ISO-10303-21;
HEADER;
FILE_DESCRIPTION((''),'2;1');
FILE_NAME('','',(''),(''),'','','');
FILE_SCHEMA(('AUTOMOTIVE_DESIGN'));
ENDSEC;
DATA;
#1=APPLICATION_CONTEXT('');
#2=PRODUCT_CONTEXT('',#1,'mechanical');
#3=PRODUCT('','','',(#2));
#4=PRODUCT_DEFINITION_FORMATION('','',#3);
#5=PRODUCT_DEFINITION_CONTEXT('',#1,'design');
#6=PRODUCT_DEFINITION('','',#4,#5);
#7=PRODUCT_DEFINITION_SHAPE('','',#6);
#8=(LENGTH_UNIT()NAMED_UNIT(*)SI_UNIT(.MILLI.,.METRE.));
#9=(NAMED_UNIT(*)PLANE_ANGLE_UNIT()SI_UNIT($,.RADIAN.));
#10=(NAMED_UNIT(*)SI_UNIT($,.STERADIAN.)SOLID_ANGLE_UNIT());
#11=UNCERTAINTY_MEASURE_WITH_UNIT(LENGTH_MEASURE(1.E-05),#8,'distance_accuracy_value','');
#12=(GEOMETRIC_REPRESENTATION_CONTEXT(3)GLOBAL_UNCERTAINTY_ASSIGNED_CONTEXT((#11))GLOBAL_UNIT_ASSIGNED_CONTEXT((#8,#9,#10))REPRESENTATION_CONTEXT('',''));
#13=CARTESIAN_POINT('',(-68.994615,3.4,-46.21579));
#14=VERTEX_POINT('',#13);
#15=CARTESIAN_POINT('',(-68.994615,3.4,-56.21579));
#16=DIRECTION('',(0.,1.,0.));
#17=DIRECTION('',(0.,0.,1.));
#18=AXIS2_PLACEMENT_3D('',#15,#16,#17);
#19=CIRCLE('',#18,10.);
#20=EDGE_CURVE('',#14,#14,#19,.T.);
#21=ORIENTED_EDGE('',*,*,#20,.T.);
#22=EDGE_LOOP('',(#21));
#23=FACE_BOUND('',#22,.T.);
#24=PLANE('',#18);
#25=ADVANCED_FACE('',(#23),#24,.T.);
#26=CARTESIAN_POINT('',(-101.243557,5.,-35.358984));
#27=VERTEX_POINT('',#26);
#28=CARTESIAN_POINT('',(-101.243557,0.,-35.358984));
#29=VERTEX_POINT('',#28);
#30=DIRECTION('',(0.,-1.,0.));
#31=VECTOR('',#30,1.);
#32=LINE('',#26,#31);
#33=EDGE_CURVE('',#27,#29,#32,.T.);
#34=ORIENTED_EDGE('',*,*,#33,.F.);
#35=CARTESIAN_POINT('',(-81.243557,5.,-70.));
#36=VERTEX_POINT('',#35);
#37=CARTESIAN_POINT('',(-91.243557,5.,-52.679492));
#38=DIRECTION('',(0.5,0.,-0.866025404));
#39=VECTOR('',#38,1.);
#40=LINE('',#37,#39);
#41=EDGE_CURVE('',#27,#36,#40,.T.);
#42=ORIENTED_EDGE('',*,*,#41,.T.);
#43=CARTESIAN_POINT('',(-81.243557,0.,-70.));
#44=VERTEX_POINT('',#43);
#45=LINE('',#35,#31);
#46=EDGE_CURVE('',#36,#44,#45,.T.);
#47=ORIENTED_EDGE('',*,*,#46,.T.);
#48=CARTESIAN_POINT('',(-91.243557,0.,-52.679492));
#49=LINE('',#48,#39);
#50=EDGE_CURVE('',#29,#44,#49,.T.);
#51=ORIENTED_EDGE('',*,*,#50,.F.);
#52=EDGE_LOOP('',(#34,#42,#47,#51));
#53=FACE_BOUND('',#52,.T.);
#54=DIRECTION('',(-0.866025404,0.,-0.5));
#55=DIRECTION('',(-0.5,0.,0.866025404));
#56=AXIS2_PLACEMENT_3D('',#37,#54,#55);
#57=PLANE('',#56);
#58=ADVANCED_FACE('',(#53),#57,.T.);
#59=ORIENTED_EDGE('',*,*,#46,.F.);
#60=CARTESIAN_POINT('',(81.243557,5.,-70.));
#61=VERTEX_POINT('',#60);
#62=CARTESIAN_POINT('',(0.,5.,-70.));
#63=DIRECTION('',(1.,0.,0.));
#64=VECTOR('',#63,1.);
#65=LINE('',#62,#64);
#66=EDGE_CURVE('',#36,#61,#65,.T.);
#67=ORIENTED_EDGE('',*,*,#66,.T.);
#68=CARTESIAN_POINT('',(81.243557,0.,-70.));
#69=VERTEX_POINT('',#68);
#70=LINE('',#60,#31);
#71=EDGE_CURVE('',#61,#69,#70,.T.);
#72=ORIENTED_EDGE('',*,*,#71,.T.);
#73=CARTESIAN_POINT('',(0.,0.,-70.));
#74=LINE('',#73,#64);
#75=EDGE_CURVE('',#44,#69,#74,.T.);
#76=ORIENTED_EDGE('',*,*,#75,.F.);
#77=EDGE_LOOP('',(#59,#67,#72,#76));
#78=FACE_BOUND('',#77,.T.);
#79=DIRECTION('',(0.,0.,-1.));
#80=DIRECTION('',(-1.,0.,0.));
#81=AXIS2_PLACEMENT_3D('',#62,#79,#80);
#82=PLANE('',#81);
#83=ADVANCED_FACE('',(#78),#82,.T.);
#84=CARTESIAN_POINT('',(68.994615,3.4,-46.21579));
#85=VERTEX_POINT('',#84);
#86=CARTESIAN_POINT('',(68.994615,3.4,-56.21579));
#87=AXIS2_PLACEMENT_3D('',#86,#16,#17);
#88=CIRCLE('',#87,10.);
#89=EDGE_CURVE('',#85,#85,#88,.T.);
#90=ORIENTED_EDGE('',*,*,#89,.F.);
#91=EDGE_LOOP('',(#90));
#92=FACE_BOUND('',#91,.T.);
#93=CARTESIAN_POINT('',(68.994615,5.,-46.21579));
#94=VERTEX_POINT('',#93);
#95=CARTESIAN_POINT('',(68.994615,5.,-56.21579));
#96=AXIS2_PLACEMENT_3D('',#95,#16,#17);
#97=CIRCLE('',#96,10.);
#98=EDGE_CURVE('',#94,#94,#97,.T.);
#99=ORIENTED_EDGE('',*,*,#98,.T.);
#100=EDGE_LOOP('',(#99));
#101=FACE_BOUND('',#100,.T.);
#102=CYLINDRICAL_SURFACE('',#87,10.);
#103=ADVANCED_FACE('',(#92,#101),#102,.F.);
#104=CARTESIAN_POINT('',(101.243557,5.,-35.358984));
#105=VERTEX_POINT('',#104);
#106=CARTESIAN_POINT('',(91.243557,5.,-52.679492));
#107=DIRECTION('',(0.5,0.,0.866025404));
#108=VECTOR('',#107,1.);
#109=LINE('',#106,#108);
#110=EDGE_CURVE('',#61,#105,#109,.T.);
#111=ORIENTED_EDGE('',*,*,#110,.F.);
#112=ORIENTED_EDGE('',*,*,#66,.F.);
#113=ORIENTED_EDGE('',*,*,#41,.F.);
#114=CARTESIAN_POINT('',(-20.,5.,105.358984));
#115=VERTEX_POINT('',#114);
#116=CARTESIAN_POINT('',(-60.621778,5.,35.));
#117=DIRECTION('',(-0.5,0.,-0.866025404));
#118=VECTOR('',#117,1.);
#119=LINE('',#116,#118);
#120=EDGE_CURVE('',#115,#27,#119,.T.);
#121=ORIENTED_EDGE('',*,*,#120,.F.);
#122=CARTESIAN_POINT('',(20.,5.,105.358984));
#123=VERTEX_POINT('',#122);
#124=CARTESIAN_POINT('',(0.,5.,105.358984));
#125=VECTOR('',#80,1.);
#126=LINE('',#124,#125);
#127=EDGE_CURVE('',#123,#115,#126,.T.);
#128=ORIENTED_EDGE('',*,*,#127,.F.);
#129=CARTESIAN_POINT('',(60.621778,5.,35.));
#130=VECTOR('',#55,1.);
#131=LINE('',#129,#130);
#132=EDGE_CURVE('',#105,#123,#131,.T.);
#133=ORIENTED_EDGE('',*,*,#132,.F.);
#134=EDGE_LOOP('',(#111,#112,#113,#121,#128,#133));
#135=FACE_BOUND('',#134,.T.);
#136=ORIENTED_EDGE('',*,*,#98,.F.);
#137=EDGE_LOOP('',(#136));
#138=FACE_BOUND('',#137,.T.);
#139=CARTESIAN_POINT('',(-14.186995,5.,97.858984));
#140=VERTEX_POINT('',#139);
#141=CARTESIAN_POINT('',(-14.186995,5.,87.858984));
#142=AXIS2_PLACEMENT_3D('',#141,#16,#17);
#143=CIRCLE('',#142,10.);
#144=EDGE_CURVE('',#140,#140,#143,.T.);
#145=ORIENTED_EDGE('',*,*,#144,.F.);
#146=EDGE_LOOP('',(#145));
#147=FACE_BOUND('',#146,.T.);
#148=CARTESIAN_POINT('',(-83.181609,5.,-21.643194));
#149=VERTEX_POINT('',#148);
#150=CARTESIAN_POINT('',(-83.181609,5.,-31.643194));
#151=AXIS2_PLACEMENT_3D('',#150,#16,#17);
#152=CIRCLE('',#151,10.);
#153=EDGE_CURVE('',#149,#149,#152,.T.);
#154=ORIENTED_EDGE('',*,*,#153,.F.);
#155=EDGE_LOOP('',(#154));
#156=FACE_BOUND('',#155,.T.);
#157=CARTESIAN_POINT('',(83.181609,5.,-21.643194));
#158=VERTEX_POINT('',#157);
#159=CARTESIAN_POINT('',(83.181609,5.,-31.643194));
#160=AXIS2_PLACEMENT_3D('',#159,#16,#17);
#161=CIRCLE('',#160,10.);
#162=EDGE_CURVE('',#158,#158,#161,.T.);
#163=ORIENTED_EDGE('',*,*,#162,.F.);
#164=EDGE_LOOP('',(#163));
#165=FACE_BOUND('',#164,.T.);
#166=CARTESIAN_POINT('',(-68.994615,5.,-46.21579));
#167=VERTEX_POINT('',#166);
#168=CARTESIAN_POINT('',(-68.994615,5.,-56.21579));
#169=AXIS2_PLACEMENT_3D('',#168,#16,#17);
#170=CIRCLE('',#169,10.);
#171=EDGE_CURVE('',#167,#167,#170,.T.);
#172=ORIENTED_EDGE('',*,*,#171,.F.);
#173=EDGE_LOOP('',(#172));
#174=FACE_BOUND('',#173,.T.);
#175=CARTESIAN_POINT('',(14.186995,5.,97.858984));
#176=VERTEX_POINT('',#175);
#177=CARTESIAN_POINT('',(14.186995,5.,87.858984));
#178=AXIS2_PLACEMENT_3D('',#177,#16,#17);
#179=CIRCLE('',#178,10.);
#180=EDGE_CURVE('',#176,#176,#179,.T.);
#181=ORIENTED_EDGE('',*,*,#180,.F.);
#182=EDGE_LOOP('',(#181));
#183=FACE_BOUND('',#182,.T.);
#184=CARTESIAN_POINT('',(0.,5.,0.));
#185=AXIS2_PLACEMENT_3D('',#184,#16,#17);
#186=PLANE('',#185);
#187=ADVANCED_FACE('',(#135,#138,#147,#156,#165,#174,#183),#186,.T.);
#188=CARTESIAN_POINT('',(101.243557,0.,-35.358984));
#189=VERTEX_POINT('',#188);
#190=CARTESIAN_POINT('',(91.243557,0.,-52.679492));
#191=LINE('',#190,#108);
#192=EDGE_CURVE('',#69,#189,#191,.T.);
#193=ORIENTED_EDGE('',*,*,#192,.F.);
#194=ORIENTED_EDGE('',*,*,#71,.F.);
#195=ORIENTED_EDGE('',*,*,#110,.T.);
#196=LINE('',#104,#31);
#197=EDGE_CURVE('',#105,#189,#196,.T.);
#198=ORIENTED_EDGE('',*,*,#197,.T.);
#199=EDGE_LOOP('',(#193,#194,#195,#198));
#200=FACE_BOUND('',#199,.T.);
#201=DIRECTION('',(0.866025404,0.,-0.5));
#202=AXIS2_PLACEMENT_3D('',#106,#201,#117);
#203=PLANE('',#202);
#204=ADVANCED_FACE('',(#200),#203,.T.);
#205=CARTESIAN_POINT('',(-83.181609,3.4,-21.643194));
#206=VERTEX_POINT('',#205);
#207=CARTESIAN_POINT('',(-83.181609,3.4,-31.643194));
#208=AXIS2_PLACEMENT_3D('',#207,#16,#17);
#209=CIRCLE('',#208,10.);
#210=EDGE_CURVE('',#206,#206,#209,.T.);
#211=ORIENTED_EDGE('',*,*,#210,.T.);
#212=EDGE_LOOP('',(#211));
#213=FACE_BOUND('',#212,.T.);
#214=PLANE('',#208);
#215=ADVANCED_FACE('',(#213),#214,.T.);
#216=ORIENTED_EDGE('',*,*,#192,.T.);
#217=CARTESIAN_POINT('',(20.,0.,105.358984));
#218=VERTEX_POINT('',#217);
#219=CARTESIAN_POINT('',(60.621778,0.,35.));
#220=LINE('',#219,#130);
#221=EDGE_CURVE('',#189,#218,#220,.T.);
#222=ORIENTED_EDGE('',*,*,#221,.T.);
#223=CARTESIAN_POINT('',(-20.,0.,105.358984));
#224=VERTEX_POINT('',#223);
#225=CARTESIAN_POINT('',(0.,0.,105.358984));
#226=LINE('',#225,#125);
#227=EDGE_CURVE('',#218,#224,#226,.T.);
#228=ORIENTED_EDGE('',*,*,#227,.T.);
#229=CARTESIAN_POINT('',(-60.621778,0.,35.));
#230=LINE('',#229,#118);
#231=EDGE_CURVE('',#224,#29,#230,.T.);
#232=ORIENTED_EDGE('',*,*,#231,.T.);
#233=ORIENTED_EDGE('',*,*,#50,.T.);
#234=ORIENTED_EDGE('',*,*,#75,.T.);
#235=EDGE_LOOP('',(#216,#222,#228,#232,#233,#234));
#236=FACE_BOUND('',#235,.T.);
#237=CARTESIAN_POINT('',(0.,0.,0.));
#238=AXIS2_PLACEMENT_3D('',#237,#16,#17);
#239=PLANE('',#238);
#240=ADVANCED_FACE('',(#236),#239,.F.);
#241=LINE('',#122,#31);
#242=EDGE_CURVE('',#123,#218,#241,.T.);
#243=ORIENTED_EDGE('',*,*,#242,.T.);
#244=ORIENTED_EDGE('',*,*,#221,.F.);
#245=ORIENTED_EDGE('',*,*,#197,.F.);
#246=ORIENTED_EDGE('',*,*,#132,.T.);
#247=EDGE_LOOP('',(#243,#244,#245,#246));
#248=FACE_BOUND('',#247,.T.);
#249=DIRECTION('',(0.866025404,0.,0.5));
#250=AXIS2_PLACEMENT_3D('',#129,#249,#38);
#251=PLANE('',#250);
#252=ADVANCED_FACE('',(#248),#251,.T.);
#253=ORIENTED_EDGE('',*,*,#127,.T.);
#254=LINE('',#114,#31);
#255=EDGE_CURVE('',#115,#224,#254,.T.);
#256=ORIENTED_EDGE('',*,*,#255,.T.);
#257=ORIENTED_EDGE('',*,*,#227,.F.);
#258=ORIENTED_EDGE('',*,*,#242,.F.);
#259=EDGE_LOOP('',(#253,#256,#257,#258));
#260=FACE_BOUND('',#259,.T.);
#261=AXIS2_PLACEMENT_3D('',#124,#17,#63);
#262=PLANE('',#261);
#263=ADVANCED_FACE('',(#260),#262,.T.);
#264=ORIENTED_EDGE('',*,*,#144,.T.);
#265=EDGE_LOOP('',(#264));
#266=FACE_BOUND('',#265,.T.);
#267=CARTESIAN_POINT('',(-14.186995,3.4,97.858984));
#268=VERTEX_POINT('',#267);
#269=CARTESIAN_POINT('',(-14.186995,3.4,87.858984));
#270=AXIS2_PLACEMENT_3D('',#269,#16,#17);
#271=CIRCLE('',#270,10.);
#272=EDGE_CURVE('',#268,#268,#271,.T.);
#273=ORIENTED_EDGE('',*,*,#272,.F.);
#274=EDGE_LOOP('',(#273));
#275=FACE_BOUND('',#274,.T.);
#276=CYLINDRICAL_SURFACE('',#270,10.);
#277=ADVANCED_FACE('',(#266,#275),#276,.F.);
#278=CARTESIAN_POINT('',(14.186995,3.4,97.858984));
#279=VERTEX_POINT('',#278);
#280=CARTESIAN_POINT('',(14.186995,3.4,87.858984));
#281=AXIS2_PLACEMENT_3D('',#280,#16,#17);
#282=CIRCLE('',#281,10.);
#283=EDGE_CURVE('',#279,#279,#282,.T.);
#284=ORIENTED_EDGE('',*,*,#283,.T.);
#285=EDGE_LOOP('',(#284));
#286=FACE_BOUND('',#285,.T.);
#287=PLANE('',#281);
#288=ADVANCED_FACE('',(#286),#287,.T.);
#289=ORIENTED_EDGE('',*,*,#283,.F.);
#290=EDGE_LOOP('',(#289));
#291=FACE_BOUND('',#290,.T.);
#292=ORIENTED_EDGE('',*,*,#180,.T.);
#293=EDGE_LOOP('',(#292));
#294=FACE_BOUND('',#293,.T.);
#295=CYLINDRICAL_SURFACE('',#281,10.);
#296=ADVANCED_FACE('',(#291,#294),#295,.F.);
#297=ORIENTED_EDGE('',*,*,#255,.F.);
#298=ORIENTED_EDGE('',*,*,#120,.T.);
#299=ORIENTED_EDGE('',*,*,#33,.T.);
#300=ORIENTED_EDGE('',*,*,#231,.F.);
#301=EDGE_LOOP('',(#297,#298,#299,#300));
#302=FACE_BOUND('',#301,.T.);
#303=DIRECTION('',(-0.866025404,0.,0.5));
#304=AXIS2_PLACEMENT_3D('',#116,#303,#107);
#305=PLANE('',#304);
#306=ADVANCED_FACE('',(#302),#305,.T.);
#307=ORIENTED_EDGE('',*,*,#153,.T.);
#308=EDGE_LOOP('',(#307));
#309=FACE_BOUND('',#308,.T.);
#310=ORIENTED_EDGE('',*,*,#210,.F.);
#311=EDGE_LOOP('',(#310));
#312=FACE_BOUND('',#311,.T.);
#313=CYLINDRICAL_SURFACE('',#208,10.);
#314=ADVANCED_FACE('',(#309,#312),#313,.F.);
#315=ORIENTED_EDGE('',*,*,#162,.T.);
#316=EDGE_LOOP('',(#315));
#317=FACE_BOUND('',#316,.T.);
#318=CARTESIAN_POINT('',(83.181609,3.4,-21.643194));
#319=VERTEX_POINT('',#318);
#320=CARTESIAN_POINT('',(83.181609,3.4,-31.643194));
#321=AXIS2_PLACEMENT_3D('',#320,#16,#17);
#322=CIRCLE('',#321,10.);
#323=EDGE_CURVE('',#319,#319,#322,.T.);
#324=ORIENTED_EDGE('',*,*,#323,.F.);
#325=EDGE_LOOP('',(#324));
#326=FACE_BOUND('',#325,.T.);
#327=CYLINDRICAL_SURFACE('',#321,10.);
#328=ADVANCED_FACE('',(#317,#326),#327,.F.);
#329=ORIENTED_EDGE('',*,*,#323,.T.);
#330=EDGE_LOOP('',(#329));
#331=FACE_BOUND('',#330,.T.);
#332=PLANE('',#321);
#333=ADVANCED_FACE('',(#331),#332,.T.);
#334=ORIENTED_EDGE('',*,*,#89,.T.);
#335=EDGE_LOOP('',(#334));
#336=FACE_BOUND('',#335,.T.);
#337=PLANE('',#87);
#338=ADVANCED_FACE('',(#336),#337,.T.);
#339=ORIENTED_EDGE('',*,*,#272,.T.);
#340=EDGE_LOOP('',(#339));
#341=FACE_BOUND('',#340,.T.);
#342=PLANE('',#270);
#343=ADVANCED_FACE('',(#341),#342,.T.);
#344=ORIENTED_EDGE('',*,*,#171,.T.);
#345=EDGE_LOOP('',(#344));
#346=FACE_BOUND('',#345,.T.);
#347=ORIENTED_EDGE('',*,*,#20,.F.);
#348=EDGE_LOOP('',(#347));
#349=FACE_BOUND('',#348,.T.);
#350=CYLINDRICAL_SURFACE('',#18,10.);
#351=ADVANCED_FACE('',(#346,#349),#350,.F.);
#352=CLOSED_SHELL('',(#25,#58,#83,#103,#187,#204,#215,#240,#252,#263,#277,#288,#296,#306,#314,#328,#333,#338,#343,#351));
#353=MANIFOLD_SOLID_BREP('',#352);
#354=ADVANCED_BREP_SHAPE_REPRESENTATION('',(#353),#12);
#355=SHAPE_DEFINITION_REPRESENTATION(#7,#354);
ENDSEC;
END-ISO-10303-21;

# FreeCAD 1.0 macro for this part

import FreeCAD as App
import Part
import Sketcher
Q = App.Units.Quantity

doc = App.newDocument("Part")
body = doc.addObject("PartDesign::Body", "Body")

sketch1 = doc.addObject("Sketcher::SketchObject", "Sketch")
body.addObject(sketch1)
sketch1.AttachmentSupport = (doc.XZ_Plane, [""])
sketch1.MapMode = "FlatFace"
sketch1.addGeometry([
    Part.LineSegment(App.Vector(20, 105.358984, 0), App.Vector(101.243557, -35.358984, 0)),
    Part.LineSegment(App.Vector(101.243557, -35.358984, 0), App.Vector(81.243557, -70, 0)),
    Part.LineSegment(App.Vector(81.243557, -70, 0), App.Vector(-81.243557, -70, 0)),
    Part.LineSegment(App.Vector(-81.243557, -70, 0), App.Vector(-101.243557, -35.358984, 0)),
    Part.LineSegment(App.Vector(-101.243557, -35.358984, 0), App.Vector(-20, 105.358984, 0)),
    Part.LineSegment(App.Vector(-20, 105.358984, 0), App.Vector(20, 105.358984, 0)),
], False)
sketch1.addConstraint([
    Sketcher.Constraint("Coincident", 0, 2, 1, 1),
    Sketcher.Constraint("Coincident", 1, 2, 2, 1),
    Sketcher.Constraint("Coincident", 2, 2, 3, 1),
    Sketcher.Constraint("Coincident", 3, 2, 4, 1),
    Sketcher.Constraint("Coincident", 4, 2, 5, 1),
    Sketcher.Constraint("Coincident", 5, 2, 0, 1),
    Sketcher.Constraint("Horizontal", 2),
    Sketcher.Constraint("Horizontal", 5),
    Sketcher.Constraint("Symmetric", 0, 2, 3, 2, -2),
    Sketcher.Constraint("Parallel", 0, 3),
    Sketcher.Constraint("Parallel", 1, 4),
    Sketcher.Constraint("Equal", 1, 3),
    Sketcher.Constraint("DistanceX", 5, 1, 5, 2, 40.0),
    Sketcher.Constraint("Angle", 0, Q("-60 deg")),
    Sketcher.Constraint("Distance", 1, 40.0),
    Sketcher.Constraint("DistanceY", 1, 2, -1, 1, 70.0),
    Sketcher.Constraint("DistanceX", 2, 2, 2, 1, 162.487113),
])
pad1 = doc.addObject("PartDesign::Pad", "Pad")
body.addObject(pad1)
pad1.Profile = sketch1
pad1.Length = 5
pad1.Reversed = True

sketch2 = doc.addObject("Sketcher::SketchObject", "Sketch001")
body.addObject(sketch2)
sketch2.AttachmentSupport = (doc.XZ_Plane, [""])
sketch2.MapMode = "FlatFace"
sketch2.AttachmentOffset = App.Placement(App.Vector(0, 0, -5), App.Rotation())
sketch2.addGeometry([
    Part.Circle(App.Vector(-14.186995, 87.858984, 0), App.Vector(0, 0, 1), 10),
    Part.Circle(App.Vector(14.186995, 87.858984, 0), App.Vector(0, 0, 1), 10),
], False)
sketch2.addConstraint([
    Sketcher.Constraint("Equal", 0, 1),
    Sketcher.Constraint("Symmetric", 0, 3, 1, 3, -2),
    Sketcher.Constraint("Diameter", 0, 20.0),
    Sketcher.Constraint("DistanceX", 0, 3, 1, 3, 28.373989),
    Sketcher.Constraint("DistanceY", -1, 1, 0, 3, 87.858984),
])
pocket1 = doc.addObject("PartDesign::Pocket", "Pocket")
body.addObject(pocket1)
pocket1.Profile = sketch2
pocket1.Length = 1.6
pocket1.Reversed = True
doc.recompute()

polarpattern = doc.addObject("PartDesign::PolarPattern", "PolarPattern")
body.addObject(polarpattern)
polarpattern.Originals = [pocket1]
polarpattern.Axis = (doc.Y_Axis, [""])
polarpattern.Angle = 360
polarpattern.Occurrences = 3
body.Tip = polarpattern

doc.recompute()
